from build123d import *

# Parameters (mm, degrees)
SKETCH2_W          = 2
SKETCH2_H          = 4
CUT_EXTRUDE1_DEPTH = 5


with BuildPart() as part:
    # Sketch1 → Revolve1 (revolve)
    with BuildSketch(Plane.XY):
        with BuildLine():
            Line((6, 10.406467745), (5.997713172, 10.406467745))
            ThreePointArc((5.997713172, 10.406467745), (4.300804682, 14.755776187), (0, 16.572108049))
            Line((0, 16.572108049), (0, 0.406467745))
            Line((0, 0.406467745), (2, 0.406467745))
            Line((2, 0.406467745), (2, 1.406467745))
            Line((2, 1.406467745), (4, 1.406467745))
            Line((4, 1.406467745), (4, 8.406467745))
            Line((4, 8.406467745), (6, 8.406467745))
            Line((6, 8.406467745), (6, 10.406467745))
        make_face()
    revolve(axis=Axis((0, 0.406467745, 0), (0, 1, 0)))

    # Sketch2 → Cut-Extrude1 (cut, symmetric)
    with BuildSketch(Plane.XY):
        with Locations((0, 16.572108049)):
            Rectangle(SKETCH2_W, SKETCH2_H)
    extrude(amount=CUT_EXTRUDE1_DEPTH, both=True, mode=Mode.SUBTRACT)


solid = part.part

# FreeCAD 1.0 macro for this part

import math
import FreeCAD as App
import Part
import Sketcher

V = App.Vector


def add_polygon(sketch, points):
    """Adds a closed chain of lines whose ends are joined by coincident constraints."""
    first, n = sketch.GeometryCount, len(points)
    for a, b in zip(points, points[1:] + points[:1]):
        sketch.addGeometry(Part.LineSegment(App.Vector(*a, 0), App.Vector(*b, 0)), False)
    for i in range(n):
        sketch.addConstraint(Sketcher.Constraint("Coincident", first + i, 2, first + (i + 1) % n, 1))

doc = App.newDocument("Part")
body = doc.addObject("PartDesign::Body", "Body")

sketch1 = body.newObject("Sketcher::SketchObject", "Sketch")
sketch1.AttachmentSupport = (doc.getObject("XY_Plane"), [""])
sketch1.MapMode = "FlatFace"
sketch1.addGeometry([
    Part.LineSegment(V(6, 10.4065, 0), V(5.9977, 10.4065, 0)),
    Part.ArcOfCircle(Part.Circle(V(0, 10.5721, 0), V(0, 0, 1), 6), math.radians(-2), math.radians(90)),
    Part.LineSegment(V(0, 16.5721, 0), V(0, 0.4065, 0)),
    Part.LineSegment(V(0, 0.4065, 0), V(2, 0.4065, 0)),
    Part.LineSegment(V(2, 0.4065, 0), V(2, 1.4065, 0)),
    Part.LineSegment(V(2, 1.4065, 0), V(4, 1.4065, 0)),
    Part.LineSegment(V(4, 1.4065, 0), V(4, 8.4065, 0)),
    Part.LineSegment(V(4, 8.4065, 0), V(6, 8.4065, 0)),
    Part.LineSegment(V(6, 8.4065, 0), V(6, 10.4065, 0)),
], False)
sketch1.addConstraint([
    Sketcher.Constraint("Coincident", 0, 2, 1, 1),
    Sketcher.Constraint("Coincident", 1, 2, 2, 1),
    Sketcher.Constraint("Coincident", 2, 2, 3, 1),
    Sketcher.Constraint("Coincident", 3, 2, 4, 1),
    Sketcher.Constraint("Coincident", 4, 2, 5, 1),
    Sketcher.Constraint("Coincident", 5, 2, 6, 1),
    Sketcher.Constraint("Coincident", 6, 2, 7, 1),
    Sketcher.Constraint("Coincident", 7, 2, 8, 1),
    Sketcher.Constraint("Coincident", 8, 2, 0, 1),
    Sketcher.Constraint("Horizontal", 0),
    Sketcher.Constraint("Vertical", 2),
    Sketcher.Constraint("Horizontal", 3),
    Sketcher.Constraint("Vertical", 4),
    Sketcher.Constraint("Horizontal", 5),
    Sketcher.Constraint("Vertical", 6),
    Sketcher.Constraint("Horizontal", 7),
    Sketcher.Constraint("Vertical", 8),
    Sketcher.Constraint("PointOnObject", 1, 3, -2),
    Sketcher.Constraint("PointOnObject", 1, 2, -2),
    Sketcher.Constraint("Equal", 3, 5),
    Sketcher.Constraint("Equal", 5, 7),
    Sketcher.Constraint("Equal", 7, 8),
    Sketcher.Constraint("Radius", 1, 6.0),
    Sketcher.Constraint("DistanceX", 3, 1, 3, 2, 2.0),
    Sketcher.Constraint("DistanceY", 4, 1, 4, 2, 1.0),
    Sketcher.Constraint("DistanceY", 6, 1, 6, 2, 7.0),
    Sketcher.Constraint("DistanceY", 2, 2, 2, 1, 16.16564),
    Sketcher.Constraint("DistanceY", -1, 1, 1, 3, 10.572108),
])
revolution = body.newObject("PartDesign::Revolution", "Revolution")
revolution.Profile = sketch1
revolution.ReferenceAxis = (sketch1, ["V_Axis"])
revolution.Angle = 360

sketch2 = body.newObject("Sketcher::SketchObject", "Sketch001")
sketch2.AttachmentSupport = (doc.getObject("XY_Plane"), [""])
sketch2.MapMode = "FlatFace"
add_polygon(sketch2, [(-1, 18.6), (-1, 14.6), (1, 14.6), (1, 18.6)])
sketch2.addConstraint([
    Sketcher.Constraint("Vertical", 0),
    Sketcher.Constraint("Horizontal", 1),
    Sketcher.Constraint("Vertical", 2),
    Sketcher.Constraint("Horizontal", 3),
    Sketcher.Constraint("DistanceX", 1, 1, 1, 2, 2.0),
    Sketcher.Constraint("DistanceY", 0, 2, 0, 1, 4.0),
    Sketcher.Constraint("DistanceX", 0, 2, -1, 1, 1.0),
    Sketcher.Constraint("DistanceY", -1, 1, 0, 2, 14.572108),
])
pocket1 = body.newObject("PartDesign::Pocket", "Pocket")
pocket1.Profile = sketch2
pocket1.Length = 10
pocket1.Midplane = True

doc.recompute()
